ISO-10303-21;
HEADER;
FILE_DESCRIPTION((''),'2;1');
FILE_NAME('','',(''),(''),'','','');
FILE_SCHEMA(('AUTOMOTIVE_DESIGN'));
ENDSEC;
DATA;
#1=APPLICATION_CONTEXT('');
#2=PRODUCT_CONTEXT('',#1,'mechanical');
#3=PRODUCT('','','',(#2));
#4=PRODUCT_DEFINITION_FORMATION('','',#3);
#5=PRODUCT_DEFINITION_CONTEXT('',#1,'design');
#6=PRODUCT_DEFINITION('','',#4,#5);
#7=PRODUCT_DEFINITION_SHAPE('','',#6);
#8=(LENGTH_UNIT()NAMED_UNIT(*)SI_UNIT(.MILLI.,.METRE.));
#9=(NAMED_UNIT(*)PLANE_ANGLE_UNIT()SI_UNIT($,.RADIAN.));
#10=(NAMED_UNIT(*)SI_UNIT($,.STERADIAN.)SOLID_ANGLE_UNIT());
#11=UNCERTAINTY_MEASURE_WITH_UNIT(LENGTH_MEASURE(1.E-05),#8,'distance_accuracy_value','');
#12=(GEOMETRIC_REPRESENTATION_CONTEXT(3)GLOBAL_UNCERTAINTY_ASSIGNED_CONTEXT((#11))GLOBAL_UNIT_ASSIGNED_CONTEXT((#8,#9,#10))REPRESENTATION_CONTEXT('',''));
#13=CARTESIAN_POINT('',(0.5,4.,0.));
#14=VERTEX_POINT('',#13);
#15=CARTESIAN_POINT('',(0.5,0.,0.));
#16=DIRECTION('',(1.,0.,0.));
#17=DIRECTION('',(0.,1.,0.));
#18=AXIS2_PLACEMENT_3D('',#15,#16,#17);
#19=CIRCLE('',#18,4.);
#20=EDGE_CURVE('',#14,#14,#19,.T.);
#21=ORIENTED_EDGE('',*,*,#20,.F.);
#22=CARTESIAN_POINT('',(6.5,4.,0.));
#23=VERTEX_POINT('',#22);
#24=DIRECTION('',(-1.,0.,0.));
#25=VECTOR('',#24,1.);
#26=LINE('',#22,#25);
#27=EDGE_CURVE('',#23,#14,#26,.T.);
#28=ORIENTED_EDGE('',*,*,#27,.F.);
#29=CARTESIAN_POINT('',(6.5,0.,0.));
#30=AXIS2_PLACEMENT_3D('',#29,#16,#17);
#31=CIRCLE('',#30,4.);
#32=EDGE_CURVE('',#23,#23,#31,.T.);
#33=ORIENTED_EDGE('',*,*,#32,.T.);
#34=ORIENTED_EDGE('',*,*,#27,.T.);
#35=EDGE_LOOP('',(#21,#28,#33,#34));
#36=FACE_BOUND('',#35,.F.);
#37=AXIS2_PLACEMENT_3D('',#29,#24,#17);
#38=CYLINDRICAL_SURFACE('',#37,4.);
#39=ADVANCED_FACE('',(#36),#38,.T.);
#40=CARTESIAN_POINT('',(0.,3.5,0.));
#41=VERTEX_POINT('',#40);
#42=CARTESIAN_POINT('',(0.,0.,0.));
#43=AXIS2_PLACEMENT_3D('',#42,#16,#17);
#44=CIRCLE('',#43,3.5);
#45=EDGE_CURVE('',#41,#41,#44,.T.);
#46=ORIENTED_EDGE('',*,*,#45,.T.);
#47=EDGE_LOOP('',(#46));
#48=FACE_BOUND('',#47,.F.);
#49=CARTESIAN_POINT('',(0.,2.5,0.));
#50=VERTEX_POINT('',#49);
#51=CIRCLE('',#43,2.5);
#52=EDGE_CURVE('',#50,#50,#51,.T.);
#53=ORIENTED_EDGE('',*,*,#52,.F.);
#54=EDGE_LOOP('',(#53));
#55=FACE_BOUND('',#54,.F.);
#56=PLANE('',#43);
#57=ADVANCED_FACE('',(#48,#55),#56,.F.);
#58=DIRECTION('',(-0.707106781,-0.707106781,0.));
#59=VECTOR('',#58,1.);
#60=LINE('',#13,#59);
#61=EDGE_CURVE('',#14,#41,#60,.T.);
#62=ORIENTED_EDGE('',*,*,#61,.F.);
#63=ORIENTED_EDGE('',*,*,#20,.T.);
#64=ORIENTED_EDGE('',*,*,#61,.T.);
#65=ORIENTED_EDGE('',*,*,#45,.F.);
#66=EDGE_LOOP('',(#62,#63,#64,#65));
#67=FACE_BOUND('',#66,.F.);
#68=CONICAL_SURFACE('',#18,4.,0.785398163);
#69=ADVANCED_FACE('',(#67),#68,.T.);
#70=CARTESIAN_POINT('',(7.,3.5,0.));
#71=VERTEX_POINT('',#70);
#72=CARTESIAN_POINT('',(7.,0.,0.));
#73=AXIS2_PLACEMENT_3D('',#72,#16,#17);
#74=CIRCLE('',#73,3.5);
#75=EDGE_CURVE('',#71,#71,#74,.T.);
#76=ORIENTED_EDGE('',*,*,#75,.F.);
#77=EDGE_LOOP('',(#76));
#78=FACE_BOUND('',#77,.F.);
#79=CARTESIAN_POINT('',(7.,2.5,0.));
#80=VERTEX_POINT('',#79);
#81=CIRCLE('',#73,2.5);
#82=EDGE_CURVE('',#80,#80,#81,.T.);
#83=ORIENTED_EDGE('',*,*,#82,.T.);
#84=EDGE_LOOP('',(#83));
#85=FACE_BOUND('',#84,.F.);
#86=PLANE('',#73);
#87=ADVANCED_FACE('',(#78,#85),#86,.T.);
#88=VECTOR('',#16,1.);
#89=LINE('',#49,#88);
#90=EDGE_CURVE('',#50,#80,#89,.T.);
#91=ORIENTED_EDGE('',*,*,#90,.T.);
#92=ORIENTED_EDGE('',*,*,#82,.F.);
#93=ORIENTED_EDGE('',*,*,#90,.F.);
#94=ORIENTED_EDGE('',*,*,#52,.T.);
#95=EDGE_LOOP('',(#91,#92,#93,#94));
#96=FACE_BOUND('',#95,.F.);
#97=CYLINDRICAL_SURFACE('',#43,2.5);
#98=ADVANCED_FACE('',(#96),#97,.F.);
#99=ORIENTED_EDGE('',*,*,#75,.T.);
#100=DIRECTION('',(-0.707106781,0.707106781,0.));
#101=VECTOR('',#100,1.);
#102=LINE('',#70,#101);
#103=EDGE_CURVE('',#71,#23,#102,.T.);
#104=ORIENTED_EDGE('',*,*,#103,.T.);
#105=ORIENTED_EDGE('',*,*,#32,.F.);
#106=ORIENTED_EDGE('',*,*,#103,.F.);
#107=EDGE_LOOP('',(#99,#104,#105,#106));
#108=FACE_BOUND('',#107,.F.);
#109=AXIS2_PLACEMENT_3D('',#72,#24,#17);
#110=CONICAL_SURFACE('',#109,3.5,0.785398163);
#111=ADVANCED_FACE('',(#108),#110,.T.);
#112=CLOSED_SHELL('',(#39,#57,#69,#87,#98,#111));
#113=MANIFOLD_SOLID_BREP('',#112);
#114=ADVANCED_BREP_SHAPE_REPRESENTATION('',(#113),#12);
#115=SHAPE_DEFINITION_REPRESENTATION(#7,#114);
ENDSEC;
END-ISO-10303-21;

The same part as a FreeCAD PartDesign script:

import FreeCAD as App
import Part
import Sketcher
Q = App.Units.Quantity

doc = App.newDocument("Part")
body = doc.addObject("PartDesign::Body", "Body")

sketch1 = body.newObject("Sketcher::SketchObject", "Sketch")
sketch1.AttachmentSupport = (doc.getObject("XY_Plane"), [""])
sketch1.MapMode = "FlatFace"
sketch1.addGeometry(Part.LineSegment(App.Vector(0, 3.5, 0), App.Vector(0, 2.5, 0)), False)
sketch1.addGeometry(Part.LineSegment(App.Vector(0, 2.5, 0), App.Vector(7, 2.5, 0)), False)
sketch1.addGeometry(Part.LineSegment(App.Vector(7, 2.5, 0), App.Vector(7, 3.5, 0)), False)
sketch1.addGeometry(Part.LineSegment(App.Vector(7, 3.5, 0), App.Vector(6.5, 4, 0)), False)
sketch1.addGeometry(Part.LineSegment(App.Vector(6.5, 4, 0), App.Vector(0.5, 4, 0)), False)
sketch1.addGeometry(Part.LineSegment(App.Vector(0.5, 4, 0), App.Vector(0, 3.5, 0)), False)
sketch1.addConstraint(Sketcher.Constraint("Coincident", 0, 2, 1, 1))
sketch1.addConstraint(Sketcher.Constraint("Coincident", 1, 2, 2, 1))
sketch1.addConstraint(Sketcher.Constraint("Coincident", 2, 2, 3, 1))
sketch1.addConstraint(Sketcher.Constraint("Coincident", 3, 2, 4, 1))
sketch1.addConstraint(Sketcher.Constraint("Coincident", 4, 2, 5, 1))
sketch1.addConstraint(Sketcher.Constraint("Coincident", 5, 2, 0, 1))
sketch1.addConstraint(Sketcher.Constraint("Vertical", 0))
sketch1.addConstraint(Sketcher.Constraint("Horizontal", 1))
sketch1.addConstraint(Sketcher.Constraint("Vertical", 2))
sketch1.addConstraint(Sketcher.Constraint("Horizontal", 4))
sketch1.addConstraint(Sketcher.Constraint("PointOnObject", 0, 2, -2))
sketch1.addConstraint(Sketcher.Constraint("Perpendicular", 3, 5))
sketch1.addConstraint(Sketcher.Constraint("Horizontal", 2, 2, 5, 2))
sketch1.addConstraint(Sketcher.Constraint("Equal", 3, 5))
sketch1.addConstraint(Sketcher.Constraint("DistanceX", 1, 1, 1, 2, Q("7 mm")))
sketch1.addConstraint(Sketcher.Constraint("DistanceX", 4, 2, 4, 1, Q("6 mm")))
sketch1.addConstraint(Sketcher.Constraint("DistanceY", 0, 2, 0, 1, Q("1 mm")))
sketch1.addConstraint(Sketcher.Constraint("DistanceY", -1, 1, 3, 2, Q("4 mm")))
revolution = body.newObject("PartDesign::Revolution", "Revolution")
revolution.Profile = sketch1
revolution.ReferenceAxis = (sketch1, ["H_Axis"])
revolution.Angle = 360

doc.recompute()
